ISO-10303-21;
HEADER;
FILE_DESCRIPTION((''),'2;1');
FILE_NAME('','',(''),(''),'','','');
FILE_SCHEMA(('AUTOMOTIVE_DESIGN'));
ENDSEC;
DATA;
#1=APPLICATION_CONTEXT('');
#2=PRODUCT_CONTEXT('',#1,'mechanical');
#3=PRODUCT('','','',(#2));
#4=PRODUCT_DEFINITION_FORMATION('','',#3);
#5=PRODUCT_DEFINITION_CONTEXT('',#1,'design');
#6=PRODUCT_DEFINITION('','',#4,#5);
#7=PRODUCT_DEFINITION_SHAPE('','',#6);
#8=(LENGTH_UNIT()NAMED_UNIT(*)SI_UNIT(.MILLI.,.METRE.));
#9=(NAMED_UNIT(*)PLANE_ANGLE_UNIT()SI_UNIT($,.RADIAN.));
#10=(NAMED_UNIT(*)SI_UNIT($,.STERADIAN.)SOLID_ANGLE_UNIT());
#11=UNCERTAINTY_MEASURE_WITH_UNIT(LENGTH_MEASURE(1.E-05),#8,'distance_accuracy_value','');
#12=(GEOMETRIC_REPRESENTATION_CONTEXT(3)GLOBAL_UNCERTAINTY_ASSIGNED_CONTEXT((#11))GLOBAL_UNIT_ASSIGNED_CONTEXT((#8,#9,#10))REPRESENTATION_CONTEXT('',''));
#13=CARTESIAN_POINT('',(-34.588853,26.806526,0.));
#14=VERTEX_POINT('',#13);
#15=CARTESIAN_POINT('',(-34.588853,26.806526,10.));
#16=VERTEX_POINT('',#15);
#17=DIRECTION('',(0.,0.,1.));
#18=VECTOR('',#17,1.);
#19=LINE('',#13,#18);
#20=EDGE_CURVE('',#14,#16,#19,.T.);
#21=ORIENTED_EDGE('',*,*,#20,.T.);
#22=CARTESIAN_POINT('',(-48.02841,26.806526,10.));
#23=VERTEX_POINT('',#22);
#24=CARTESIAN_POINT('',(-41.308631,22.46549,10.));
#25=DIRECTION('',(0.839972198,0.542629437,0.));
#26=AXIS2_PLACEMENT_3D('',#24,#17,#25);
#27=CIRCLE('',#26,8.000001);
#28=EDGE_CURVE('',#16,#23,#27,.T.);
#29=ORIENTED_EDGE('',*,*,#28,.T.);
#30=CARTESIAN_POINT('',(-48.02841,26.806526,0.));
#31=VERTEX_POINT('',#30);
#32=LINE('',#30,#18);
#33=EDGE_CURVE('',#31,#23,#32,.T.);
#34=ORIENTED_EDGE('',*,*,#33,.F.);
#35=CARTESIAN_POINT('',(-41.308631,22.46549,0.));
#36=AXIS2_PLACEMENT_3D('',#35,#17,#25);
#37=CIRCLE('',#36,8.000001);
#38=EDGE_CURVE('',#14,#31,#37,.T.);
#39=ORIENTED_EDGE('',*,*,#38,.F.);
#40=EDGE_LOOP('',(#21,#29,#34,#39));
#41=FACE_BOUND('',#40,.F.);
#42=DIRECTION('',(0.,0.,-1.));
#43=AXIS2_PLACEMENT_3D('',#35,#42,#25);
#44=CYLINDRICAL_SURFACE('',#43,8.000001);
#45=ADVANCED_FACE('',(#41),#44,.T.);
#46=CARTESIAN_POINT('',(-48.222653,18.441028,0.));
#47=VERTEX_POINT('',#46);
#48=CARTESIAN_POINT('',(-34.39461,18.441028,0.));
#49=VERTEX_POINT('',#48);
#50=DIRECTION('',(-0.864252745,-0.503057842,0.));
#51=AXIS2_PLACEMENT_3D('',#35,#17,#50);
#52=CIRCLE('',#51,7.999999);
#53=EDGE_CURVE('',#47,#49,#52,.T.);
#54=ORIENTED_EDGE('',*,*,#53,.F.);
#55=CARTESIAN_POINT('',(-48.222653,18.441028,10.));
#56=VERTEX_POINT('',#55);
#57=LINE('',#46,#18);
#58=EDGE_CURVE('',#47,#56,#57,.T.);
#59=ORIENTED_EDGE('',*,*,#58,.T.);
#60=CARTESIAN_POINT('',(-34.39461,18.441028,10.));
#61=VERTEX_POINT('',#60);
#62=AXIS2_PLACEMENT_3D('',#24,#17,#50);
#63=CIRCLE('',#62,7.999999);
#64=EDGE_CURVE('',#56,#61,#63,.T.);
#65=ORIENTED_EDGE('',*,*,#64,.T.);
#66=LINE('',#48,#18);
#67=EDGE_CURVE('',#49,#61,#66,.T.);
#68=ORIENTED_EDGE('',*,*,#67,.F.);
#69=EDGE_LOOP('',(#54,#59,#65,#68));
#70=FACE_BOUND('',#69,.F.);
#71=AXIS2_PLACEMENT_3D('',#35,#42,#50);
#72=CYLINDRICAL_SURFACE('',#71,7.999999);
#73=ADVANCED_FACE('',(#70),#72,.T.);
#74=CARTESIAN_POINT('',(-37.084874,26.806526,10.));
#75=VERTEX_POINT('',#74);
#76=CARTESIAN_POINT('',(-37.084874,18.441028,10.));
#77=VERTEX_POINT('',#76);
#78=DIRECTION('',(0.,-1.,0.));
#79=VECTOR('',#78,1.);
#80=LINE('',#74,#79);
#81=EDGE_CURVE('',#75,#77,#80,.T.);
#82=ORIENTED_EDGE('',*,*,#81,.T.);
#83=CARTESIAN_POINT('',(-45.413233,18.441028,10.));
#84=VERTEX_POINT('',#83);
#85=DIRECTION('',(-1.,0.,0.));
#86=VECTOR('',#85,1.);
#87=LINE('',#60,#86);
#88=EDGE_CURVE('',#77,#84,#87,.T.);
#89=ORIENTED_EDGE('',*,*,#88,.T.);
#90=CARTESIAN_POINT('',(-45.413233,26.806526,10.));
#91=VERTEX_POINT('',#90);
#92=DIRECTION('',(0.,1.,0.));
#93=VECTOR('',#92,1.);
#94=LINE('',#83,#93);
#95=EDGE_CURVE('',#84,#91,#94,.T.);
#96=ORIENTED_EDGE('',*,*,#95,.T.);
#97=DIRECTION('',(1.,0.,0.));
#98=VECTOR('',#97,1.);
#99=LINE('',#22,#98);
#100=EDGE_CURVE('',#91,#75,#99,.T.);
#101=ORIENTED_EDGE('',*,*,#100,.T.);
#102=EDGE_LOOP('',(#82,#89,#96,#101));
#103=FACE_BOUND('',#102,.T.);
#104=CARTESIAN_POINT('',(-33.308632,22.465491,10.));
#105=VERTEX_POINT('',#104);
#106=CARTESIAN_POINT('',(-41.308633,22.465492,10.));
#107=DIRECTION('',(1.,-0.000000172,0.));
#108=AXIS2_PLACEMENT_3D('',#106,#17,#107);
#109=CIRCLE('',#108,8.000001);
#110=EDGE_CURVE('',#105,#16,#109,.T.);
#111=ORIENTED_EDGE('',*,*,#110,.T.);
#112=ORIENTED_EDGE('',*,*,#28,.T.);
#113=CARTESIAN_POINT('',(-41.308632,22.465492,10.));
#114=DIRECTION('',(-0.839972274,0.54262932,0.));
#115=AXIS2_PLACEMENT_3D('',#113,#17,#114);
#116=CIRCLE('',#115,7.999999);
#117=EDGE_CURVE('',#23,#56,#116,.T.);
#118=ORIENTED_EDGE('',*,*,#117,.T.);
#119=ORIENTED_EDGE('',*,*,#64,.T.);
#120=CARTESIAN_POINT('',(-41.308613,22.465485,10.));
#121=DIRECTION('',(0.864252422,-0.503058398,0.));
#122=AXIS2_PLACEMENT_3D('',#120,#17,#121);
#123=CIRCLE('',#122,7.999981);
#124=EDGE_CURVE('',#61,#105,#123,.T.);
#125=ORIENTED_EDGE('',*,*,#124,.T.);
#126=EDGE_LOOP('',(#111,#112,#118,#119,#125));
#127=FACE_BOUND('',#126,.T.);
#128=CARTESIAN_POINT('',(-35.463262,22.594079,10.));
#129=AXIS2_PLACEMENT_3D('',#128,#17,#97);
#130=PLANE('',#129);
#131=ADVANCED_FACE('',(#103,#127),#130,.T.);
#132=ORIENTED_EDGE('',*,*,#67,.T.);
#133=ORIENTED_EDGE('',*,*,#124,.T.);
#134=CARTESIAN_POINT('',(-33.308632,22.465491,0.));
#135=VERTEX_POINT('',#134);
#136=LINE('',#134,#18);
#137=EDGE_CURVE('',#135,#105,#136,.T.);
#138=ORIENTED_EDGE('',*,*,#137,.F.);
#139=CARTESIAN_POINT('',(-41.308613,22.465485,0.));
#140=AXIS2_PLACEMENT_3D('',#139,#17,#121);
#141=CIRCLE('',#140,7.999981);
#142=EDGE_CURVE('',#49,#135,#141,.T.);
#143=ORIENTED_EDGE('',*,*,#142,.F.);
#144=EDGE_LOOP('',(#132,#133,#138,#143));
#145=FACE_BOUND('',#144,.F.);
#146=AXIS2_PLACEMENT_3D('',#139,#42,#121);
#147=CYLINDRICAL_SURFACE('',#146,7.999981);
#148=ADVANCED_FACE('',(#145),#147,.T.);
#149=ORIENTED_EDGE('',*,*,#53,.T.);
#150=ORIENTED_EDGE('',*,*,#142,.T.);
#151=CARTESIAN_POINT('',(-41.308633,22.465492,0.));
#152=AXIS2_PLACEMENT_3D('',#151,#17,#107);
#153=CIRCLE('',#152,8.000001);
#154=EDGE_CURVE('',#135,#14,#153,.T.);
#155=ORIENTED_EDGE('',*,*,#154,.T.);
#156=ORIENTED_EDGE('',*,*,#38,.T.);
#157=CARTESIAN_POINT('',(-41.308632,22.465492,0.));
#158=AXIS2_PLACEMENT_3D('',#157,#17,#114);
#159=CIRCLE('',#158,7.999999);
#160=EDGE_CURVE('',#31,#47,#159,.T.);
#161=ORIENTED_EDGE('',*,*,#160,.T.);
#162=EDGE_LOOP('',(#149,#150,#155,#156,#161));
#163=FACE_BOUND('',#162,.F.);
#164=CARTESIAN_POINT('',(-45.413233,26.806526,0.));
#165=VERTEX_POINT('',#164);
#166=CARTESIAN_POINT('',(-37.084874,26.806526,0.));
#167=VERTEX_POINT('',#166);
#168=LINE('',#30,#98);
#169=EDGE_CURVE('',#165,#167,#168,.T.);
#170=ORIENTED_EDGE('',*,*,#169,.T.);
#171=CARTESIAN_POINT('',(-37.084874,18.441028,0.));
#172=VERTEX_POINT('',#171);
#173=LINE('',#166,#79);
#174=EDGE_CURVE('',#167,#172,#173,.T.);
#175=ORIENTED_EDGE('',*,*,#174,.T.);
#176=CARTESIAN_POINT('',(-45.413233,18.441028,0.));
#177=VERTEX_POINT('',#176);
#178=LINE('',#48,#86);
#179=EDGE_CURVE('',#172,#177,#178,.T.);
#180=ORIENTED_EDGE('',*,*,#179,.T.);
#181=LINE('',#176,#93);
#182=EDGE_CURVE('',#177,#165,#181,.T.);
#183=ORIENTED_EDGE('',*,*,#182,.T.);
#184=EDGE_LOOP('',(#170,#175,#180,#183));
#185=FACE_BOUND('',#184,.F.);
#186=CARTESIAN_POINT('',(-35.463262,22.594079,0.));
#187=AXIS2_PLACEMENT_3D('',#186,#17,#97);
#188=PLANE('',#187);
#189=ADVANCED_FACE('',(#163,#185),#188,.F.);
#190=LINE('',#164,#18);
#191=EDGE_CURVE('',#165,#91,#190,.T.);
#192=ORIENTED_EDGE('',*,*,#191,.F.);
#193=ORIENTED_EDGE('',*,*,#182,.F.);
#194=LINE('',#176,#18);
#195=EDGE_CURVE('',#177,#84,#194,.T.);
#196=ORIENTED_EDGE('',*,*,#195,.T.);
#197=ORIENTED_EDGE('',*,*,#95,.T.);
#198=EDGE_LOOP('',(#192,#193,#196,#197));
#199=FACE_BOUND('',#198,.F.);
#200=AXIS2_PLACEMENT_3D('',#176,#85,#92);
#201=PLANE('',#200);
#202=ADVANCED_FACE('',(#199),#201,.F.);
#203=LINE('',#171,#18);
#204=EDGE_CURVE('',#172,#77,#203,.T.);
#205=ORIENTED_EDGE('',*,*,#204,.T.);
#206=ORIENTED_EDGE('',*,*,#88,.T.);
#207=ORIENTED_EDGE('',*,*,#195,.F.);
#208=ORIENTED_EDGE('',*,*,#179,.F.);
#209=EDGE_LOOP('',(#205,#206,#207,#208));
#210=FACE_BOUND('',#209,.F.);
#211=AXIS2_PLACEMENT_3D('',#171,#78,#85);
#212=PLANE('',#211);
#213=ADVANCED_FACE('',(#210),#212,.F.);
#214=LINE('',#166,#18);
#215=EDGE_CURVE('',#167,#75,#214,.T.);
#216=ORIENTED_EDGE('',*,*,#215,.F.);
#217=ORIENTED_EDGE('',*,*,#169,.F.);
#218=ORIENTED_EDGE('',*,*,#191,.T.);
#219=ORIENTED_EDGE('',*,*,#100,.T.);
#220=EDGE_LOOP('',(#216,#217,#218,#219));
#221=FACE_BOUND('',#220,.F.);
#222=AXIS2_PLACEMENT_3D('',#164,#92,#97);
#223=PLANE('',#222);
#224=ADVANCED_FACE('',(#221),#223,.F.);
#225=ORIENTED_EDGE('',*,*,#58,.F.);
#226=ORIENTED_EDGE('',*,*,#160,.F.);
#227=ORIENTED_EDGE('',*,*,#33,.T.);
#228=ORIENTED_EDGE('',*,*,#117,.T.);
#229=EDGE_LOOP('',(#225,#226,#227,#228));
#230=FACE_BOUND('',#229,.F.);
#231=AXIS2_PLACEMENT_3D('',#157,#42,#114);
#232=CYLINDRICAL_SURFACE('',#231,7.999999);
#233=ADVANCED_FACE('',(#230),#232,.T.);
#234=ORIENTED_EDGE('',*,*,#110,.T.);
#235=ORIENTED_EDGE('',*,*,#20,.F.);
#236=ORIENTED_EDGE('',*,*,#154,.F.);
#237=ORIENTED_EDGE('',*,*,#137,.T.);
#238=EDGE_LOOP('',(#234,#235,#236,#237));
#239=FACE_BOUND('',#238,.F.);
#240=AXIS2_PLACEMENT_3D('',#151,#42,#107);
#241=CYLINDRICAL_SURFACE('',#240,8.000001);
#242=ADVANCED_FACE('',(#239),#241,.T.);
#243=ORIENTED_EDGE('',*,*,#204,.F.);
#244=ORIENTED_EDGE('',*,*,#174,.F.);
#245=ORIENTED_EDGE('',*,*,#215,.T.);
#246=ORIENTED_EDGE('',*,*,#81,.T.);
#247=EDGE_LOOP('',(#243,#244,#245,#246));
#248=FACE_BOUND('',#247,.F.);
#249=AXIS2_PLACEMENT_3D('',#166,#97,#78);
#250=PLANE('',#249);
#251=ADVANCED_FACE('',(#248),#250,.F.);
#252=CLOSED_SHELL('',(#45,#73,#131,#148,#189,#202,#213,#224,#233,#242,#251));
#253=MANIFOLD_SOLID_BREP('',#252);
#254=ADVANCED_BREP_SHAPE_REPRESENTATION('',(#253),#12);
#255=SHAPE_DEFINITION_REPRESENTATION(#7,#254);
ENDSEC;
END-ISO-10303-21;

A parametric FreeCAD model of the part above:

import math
import FreeCAD as App
import Part
import Sketcher

V = App.Vector
Q = App.Units.Quantity


def add_polygon(sketch, points):
    """Adds a closed chain of lines whose ends are joined by coincident constraints."""
    first, n = sketch.GeometryCount, len(points)
    for a, b in zip(points, points[1:] + points[:1]):
        sketch.addGeometry(Part.LineSegment(App.Vector(*a, 0), App.Vector(*b, 0)), False)
    for i in range(n):
        sketch.addConstraint(Sketcher.Constraint("Coincident", first + i, 2, first + (i + 1) % n, 1))

doc = App.newDocument("Part")
body = doc.addObject("PartDesign::Body", "Body")

sketch1 = doc.addObject("Sketcher::SketchObject", "Sketch")
body.addObject(sketch1)
sketch1.AttachmentSupport = (doc.XY_Plane, [""])
sketch1.MapMode = "FlatFace"
sketch1.addGeometry(Part.ArcOfCircle(Part.Circle(V(-41.308613, 22.465485, 0), V(0, 0, 1), 7.999981), math.radians(-30.202549), math.radians(0.00004)), False)
sketch1.addGeometry(Part.ArcOfCircle(Part.Circle(V(-41.308633, 22.465492, 0), V(0, 0, 1), 8.000001), math.radians(-0.00001), math.radians(32.862795)), False)
sketch1.addGeometry(Part.ArcOfCircle(Part.Circle(V(-41.308631, 22.46549, 0), V(0, 0, 1), 8.000001), math.radians(32.862816), math.radians(147.137184)), False)
sketch1.addGeometry(Part.ArcOfCircle(Part.Circle(V(-41.308632, 22.465492, 0), V(0, 0, 1), 7.999999), math.radians(147.137192), math.radians(210.202523)), False)
sketch1.addGeometry(Part.ArcOfCircle(Part.Circle(V(-41.308631, 22.46549, 0), V(0, 0, 1), 7.999999), math.radians(-149.797488), math.radians(-30.202512)), False)
add_polygon(sketch1, [(-45.413233, 26.806526), (-37.084874, 26.806526), (-37.084874, 18.441028), (-45.413233, 18.441028)])
sketch1.addConstraint([
    Sketcher.Constraint("Coincident", 0, 2, 1, 1),
    Sketcher.Constraint("Coincident", 1, 2, 2, 1),
    Sketcher.Constraint("Coincident", 2, 2, 3, 1),
    Sketcher.Constraint("Coincident", 3, 2, 4, 1),
    Sketcher.Constraint("Coincident", 4, 2, 0, 1),
    Sketcher.Constraint("Horizontal", 5),
    Sketcher.Constraint("Vertical", 6),
    Sketcher.Constraint("Horizontal", 7),
    Sketcher.Constraint("Vertical", 8),
    Sketcher.Constraint("Coincident", 2, 3, 1, 3),
    Sketcher.Constraint("Coincident", 3, 3, 1, 3),
    Sketcher.Constraint("Coincident", 4, 3, 1, 3),
    Sketcher.Constraint("Radius", 1, Q("8.000001 mm")),
    Sketcher.Constraint("Radius", 0, Q("7.999981 mm")),
    Sketcher.Constraint("DistanceY", 6, 2, 6, 1, Q("8.365498 mm")),
    Sketcher.Constraint("DistanceX", 5, 1, 5, 2, Q("8.328359 mm")),
    Sketcher.Constraint("DistanceX", 7, 2, 2, 3, Q("4.104602 mm")),
    Sketcher.Constraint("DistanceX", 2, 3, -1, 1, Q("41.308631 mm")),
    Sketcher.Constraint("DistanceY", -1, 1, 2, 3, Q("22.46549 mm")),
    Sketcher.Constraint("DistanceY", -1, 1, 0, 2, Q("22.465491 mm")),
    Sketcher.Constraint("DistanceX", 2, 2, -1, 1, Q("48.02841 mm")),
    Sketcher.Constraint("DistanceY", -1, 1, 3, 2, Q("18.441028 mm")),
    Sketcher.Constraint("DistanceX", 4, 2, -1, 1, Q("34.39461 mm")),
    Sketcher.Constraint("DistanceX", 1, 2, 0, 2, Q("1.280221 mm")),
    Sketcher.Constraint("DistanceY", 0, 3, 5, 2, Q("4.341041 mm")),
])
pad1 = doc.addObject("PartDesign::Pad", "Pad")
body.addObject(pad1)
pad1.Profile = sketch1
pad1.Length = 10

doc.recompute()
